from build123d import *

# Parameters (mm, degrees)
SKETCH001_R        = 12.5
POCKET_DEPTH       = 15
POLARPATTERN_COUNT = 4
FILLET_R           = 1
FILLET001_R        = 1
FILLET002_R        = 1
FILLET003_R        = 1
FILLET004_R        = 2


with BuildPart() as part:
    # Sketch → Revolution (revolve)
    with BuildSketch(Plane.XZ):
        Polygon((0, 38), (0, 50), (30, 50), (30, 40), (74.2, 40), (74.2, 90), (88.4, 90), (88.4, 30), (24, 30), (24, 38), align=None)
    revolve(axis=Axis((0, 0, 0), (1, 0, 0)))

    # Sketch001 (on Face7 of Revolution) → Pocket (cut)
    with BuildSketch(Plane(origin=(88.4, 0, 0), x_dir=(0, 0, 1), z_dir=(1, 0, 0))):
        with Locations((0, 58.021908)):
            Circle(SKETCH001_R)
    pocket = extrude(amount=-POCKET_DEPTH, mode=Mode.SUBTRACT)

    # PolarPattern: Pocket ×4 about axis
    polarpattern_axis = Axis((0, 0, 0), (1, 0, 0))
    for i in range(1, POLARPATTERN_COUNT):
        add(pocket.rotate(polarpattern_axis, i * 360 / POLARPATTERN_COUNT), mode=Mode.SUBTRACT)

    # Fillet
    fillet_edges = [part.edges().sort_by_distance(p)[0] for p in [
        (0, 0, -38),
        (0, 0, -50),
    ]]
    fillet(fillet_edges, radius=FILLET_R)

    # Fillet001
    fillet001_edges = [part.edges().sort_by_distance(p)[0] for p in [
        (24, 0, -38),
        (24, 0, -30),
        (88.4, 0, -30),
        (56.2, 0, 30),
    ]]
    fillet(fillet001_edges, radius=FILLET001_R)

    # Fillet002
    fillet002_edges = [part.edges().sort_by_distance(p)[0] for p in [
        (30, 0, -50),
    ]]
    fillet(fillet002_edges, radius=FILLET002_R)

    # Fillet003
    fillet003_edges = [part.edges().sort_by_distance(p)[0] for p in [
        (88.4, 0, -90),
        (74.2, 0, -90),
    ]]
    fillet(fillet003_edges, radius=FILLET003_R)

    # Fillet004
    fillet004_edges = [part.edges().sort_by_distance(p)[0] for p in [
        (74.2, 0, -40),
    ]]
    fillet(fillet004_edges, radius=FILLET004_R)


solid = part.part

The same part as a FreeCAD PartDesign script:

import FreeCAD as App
import Part
import Sketcher

V = App.Vector


def edges_at(feature, points):
    """Names of the edges that pass closest to the given points."""
    edges = feature.Shape.Edges
    near = lambda p: min(range(len(edges)), key=lambda i: edges[i].distToShape(Part.Vertex(*p))[0])
    return sorted({f"Edge{near(p) + 1}" for p in points})


def add_polygon(sketch, points):
    """Adds a closed chain of lines whose ends are joined by coincident constraints."""
    first, n = sketch.GeometryCount, len(points)
    for a, b in zip(points, points[1:] + points[:1]):
        sketch.addGeometry(Part.LineSegment(App.Vector(*a, 0), App.Vector(*b, 0)), False)
    for i in range(n):
        sketch.addConstraint(Sketcher.Constraint("Coincident", first + i, 2, first + (i + 1) % n, 1))

doc = App.newDocument("Part")
body = doc.addObject("PartDesign::Body", "Body")

sketch1 = body.newObject("Sketcher::SketchObject", "Sketch")
sketch1.AttachmentSupport = (doc.getObject("XZ_Plane"), [""])
sketch1.MapMode = "FlatFace"
add_polygon(sketch1, [(0, 50), (0, 38), (24, 38), (24, 30), (88.4, 30), (88.4, 90), (74.2, 90), (74.2, 40), (30, 40), (30, 50)])
sketch1.addConstraint([
    Sketcher.Constraint("Vertical", 0),
    Sketcher.Constraint("Horizontal", 1),
    Sketcher.Constraint("Vertical", 2),
    Sketcher.Constraint("Horizontal", 3),
    Sketcher.Constraint("Vertical", 4),
    Sketcher.Constraint("Horizontal", 5),
    Sketcher.Constraint("Vertical", 6),
    Sketcher.Constraint("Horizontal", 7),
    Sketcher.Constraint("Vertical", 8),
    Sketcher.Constraint("Horizontal", 9),
    Sketcher.Constraint("PointOnObject", 0, 2, -2),
    Sketcher.Constraint("DistanceX", 1, 1, 1, 2, 24.0),
    Sketcher.Constraint("DistanceX", 9, 2, 9, 1, 30.0),
    Sketcher.Constraint("DistanceY", 0, 2, 0, 1, 12.0),
    Sketcher.Constraint("DistanceY", 2, 2, 2, 1, 8.0),
    Sketcher.Constraint("DistanceY", 4, 1, 4, 2, 60.0),
    Sketcher.Constraint("DistanceY", 6, 2, 6, 1, 50.0),
    Sketcher.Constraint("DistanceX", 3, 1, 3, 2, 64.4),
    Sketcher.Constraint("DistanceX", 5, 2, 5, 1, 14.2),
    Sketcher.Constraint("DistanceY", -1, 1, 0, 2, 38.0),
])
revolution = body.newObject("PartDesign::Revolution", "Revolution")
revolution.Profile = sketch1
revolution.ReferenceAxis = (sketch1, ["H_Axis"])
revolution.Angle = 360

sketch2 = body.newObject("Sketcher::SketchObject", "Sketch001")
sketch2.AttachmentSupport = (doc.getObject("YZ_Plane"), [""])
sketch2.MapMode = "FlatFace"
sketch2.AttachmentOffset = App.Placement(V(0, 0, 88.4), App.Rotation())
sketch2.addGeometry(Part.Circle(V(-58.021908, 0, 0), V(0, 0, 1), 12.5), False)
sketch2.addConstraint([
    Sketcher.Constraint("PointOnObject", 0, 3, -1),
    Sketcher.Constraint("Diameter", 0, 25.0),
    Sketcher.Constraint("DistanceX", 0, 3, -1, 1, 58.021908),
])
pocket1 = body.newObject("PartDesign::Pocket", "Pocket")
pocket1.Profile = sketch2
pocket1.Length = 15
doc.recompute()

polarpattern = body.newObject("PartDesign::PolarPattern", "PolarPattern")
polarpattern.Originals = [pocket1]
polarpattern.Axis = (doc.getObject("X_Axis"), [""])
polarpattern.Angle = 360
polarpattern.Occurrences = 4
body.Tip = polarpattern
doc.recompute()

fillet = body.newObject("PartDesign::Fillet", "Fillet")
fillet.Base = (polarpattern, edges_at(polarpattern, [(0, 0, -38), (0, 0, -50)]))
fillet.Radius = 1
doc.recompute()

fillet2 = body.newObject("PartDesign::Fillet", "Fillet001")
fillet2.Base = (fillet, edges_at(fillet, [
    (24, 0, -38),
    (24, 0, -30),
    (88.4, 0, -30),
    (56.2, 0, 30),
]))
fillet2.Radius = 1
doc.recompute()

fillet3 = body.newObject("PartDesign::Fillet", "Fillet002")
fillet3.Base = (fillet2, edges_at(fillet2, [(30, 0, -50)]))
fillet3.Radius = 1
doc.recompute()

fillet4 = body.newObject("PartDesign::Fillet", "Fillet003")
fillet4.Base = (fillet3, edges_at(fillet3, [(88.4, 0, -90), (74.2, 0, -90)]))
fillet4.Radius = 1
doc.recompute()

fillet5 = body.newObject("PartDesign::Fillet", "Fillet004")
fillet5.Base = (fillet4, edges_at(fillet4, [(74.2, 0, -40)]))
fillet5.Radius = 2

doc.recompute()
